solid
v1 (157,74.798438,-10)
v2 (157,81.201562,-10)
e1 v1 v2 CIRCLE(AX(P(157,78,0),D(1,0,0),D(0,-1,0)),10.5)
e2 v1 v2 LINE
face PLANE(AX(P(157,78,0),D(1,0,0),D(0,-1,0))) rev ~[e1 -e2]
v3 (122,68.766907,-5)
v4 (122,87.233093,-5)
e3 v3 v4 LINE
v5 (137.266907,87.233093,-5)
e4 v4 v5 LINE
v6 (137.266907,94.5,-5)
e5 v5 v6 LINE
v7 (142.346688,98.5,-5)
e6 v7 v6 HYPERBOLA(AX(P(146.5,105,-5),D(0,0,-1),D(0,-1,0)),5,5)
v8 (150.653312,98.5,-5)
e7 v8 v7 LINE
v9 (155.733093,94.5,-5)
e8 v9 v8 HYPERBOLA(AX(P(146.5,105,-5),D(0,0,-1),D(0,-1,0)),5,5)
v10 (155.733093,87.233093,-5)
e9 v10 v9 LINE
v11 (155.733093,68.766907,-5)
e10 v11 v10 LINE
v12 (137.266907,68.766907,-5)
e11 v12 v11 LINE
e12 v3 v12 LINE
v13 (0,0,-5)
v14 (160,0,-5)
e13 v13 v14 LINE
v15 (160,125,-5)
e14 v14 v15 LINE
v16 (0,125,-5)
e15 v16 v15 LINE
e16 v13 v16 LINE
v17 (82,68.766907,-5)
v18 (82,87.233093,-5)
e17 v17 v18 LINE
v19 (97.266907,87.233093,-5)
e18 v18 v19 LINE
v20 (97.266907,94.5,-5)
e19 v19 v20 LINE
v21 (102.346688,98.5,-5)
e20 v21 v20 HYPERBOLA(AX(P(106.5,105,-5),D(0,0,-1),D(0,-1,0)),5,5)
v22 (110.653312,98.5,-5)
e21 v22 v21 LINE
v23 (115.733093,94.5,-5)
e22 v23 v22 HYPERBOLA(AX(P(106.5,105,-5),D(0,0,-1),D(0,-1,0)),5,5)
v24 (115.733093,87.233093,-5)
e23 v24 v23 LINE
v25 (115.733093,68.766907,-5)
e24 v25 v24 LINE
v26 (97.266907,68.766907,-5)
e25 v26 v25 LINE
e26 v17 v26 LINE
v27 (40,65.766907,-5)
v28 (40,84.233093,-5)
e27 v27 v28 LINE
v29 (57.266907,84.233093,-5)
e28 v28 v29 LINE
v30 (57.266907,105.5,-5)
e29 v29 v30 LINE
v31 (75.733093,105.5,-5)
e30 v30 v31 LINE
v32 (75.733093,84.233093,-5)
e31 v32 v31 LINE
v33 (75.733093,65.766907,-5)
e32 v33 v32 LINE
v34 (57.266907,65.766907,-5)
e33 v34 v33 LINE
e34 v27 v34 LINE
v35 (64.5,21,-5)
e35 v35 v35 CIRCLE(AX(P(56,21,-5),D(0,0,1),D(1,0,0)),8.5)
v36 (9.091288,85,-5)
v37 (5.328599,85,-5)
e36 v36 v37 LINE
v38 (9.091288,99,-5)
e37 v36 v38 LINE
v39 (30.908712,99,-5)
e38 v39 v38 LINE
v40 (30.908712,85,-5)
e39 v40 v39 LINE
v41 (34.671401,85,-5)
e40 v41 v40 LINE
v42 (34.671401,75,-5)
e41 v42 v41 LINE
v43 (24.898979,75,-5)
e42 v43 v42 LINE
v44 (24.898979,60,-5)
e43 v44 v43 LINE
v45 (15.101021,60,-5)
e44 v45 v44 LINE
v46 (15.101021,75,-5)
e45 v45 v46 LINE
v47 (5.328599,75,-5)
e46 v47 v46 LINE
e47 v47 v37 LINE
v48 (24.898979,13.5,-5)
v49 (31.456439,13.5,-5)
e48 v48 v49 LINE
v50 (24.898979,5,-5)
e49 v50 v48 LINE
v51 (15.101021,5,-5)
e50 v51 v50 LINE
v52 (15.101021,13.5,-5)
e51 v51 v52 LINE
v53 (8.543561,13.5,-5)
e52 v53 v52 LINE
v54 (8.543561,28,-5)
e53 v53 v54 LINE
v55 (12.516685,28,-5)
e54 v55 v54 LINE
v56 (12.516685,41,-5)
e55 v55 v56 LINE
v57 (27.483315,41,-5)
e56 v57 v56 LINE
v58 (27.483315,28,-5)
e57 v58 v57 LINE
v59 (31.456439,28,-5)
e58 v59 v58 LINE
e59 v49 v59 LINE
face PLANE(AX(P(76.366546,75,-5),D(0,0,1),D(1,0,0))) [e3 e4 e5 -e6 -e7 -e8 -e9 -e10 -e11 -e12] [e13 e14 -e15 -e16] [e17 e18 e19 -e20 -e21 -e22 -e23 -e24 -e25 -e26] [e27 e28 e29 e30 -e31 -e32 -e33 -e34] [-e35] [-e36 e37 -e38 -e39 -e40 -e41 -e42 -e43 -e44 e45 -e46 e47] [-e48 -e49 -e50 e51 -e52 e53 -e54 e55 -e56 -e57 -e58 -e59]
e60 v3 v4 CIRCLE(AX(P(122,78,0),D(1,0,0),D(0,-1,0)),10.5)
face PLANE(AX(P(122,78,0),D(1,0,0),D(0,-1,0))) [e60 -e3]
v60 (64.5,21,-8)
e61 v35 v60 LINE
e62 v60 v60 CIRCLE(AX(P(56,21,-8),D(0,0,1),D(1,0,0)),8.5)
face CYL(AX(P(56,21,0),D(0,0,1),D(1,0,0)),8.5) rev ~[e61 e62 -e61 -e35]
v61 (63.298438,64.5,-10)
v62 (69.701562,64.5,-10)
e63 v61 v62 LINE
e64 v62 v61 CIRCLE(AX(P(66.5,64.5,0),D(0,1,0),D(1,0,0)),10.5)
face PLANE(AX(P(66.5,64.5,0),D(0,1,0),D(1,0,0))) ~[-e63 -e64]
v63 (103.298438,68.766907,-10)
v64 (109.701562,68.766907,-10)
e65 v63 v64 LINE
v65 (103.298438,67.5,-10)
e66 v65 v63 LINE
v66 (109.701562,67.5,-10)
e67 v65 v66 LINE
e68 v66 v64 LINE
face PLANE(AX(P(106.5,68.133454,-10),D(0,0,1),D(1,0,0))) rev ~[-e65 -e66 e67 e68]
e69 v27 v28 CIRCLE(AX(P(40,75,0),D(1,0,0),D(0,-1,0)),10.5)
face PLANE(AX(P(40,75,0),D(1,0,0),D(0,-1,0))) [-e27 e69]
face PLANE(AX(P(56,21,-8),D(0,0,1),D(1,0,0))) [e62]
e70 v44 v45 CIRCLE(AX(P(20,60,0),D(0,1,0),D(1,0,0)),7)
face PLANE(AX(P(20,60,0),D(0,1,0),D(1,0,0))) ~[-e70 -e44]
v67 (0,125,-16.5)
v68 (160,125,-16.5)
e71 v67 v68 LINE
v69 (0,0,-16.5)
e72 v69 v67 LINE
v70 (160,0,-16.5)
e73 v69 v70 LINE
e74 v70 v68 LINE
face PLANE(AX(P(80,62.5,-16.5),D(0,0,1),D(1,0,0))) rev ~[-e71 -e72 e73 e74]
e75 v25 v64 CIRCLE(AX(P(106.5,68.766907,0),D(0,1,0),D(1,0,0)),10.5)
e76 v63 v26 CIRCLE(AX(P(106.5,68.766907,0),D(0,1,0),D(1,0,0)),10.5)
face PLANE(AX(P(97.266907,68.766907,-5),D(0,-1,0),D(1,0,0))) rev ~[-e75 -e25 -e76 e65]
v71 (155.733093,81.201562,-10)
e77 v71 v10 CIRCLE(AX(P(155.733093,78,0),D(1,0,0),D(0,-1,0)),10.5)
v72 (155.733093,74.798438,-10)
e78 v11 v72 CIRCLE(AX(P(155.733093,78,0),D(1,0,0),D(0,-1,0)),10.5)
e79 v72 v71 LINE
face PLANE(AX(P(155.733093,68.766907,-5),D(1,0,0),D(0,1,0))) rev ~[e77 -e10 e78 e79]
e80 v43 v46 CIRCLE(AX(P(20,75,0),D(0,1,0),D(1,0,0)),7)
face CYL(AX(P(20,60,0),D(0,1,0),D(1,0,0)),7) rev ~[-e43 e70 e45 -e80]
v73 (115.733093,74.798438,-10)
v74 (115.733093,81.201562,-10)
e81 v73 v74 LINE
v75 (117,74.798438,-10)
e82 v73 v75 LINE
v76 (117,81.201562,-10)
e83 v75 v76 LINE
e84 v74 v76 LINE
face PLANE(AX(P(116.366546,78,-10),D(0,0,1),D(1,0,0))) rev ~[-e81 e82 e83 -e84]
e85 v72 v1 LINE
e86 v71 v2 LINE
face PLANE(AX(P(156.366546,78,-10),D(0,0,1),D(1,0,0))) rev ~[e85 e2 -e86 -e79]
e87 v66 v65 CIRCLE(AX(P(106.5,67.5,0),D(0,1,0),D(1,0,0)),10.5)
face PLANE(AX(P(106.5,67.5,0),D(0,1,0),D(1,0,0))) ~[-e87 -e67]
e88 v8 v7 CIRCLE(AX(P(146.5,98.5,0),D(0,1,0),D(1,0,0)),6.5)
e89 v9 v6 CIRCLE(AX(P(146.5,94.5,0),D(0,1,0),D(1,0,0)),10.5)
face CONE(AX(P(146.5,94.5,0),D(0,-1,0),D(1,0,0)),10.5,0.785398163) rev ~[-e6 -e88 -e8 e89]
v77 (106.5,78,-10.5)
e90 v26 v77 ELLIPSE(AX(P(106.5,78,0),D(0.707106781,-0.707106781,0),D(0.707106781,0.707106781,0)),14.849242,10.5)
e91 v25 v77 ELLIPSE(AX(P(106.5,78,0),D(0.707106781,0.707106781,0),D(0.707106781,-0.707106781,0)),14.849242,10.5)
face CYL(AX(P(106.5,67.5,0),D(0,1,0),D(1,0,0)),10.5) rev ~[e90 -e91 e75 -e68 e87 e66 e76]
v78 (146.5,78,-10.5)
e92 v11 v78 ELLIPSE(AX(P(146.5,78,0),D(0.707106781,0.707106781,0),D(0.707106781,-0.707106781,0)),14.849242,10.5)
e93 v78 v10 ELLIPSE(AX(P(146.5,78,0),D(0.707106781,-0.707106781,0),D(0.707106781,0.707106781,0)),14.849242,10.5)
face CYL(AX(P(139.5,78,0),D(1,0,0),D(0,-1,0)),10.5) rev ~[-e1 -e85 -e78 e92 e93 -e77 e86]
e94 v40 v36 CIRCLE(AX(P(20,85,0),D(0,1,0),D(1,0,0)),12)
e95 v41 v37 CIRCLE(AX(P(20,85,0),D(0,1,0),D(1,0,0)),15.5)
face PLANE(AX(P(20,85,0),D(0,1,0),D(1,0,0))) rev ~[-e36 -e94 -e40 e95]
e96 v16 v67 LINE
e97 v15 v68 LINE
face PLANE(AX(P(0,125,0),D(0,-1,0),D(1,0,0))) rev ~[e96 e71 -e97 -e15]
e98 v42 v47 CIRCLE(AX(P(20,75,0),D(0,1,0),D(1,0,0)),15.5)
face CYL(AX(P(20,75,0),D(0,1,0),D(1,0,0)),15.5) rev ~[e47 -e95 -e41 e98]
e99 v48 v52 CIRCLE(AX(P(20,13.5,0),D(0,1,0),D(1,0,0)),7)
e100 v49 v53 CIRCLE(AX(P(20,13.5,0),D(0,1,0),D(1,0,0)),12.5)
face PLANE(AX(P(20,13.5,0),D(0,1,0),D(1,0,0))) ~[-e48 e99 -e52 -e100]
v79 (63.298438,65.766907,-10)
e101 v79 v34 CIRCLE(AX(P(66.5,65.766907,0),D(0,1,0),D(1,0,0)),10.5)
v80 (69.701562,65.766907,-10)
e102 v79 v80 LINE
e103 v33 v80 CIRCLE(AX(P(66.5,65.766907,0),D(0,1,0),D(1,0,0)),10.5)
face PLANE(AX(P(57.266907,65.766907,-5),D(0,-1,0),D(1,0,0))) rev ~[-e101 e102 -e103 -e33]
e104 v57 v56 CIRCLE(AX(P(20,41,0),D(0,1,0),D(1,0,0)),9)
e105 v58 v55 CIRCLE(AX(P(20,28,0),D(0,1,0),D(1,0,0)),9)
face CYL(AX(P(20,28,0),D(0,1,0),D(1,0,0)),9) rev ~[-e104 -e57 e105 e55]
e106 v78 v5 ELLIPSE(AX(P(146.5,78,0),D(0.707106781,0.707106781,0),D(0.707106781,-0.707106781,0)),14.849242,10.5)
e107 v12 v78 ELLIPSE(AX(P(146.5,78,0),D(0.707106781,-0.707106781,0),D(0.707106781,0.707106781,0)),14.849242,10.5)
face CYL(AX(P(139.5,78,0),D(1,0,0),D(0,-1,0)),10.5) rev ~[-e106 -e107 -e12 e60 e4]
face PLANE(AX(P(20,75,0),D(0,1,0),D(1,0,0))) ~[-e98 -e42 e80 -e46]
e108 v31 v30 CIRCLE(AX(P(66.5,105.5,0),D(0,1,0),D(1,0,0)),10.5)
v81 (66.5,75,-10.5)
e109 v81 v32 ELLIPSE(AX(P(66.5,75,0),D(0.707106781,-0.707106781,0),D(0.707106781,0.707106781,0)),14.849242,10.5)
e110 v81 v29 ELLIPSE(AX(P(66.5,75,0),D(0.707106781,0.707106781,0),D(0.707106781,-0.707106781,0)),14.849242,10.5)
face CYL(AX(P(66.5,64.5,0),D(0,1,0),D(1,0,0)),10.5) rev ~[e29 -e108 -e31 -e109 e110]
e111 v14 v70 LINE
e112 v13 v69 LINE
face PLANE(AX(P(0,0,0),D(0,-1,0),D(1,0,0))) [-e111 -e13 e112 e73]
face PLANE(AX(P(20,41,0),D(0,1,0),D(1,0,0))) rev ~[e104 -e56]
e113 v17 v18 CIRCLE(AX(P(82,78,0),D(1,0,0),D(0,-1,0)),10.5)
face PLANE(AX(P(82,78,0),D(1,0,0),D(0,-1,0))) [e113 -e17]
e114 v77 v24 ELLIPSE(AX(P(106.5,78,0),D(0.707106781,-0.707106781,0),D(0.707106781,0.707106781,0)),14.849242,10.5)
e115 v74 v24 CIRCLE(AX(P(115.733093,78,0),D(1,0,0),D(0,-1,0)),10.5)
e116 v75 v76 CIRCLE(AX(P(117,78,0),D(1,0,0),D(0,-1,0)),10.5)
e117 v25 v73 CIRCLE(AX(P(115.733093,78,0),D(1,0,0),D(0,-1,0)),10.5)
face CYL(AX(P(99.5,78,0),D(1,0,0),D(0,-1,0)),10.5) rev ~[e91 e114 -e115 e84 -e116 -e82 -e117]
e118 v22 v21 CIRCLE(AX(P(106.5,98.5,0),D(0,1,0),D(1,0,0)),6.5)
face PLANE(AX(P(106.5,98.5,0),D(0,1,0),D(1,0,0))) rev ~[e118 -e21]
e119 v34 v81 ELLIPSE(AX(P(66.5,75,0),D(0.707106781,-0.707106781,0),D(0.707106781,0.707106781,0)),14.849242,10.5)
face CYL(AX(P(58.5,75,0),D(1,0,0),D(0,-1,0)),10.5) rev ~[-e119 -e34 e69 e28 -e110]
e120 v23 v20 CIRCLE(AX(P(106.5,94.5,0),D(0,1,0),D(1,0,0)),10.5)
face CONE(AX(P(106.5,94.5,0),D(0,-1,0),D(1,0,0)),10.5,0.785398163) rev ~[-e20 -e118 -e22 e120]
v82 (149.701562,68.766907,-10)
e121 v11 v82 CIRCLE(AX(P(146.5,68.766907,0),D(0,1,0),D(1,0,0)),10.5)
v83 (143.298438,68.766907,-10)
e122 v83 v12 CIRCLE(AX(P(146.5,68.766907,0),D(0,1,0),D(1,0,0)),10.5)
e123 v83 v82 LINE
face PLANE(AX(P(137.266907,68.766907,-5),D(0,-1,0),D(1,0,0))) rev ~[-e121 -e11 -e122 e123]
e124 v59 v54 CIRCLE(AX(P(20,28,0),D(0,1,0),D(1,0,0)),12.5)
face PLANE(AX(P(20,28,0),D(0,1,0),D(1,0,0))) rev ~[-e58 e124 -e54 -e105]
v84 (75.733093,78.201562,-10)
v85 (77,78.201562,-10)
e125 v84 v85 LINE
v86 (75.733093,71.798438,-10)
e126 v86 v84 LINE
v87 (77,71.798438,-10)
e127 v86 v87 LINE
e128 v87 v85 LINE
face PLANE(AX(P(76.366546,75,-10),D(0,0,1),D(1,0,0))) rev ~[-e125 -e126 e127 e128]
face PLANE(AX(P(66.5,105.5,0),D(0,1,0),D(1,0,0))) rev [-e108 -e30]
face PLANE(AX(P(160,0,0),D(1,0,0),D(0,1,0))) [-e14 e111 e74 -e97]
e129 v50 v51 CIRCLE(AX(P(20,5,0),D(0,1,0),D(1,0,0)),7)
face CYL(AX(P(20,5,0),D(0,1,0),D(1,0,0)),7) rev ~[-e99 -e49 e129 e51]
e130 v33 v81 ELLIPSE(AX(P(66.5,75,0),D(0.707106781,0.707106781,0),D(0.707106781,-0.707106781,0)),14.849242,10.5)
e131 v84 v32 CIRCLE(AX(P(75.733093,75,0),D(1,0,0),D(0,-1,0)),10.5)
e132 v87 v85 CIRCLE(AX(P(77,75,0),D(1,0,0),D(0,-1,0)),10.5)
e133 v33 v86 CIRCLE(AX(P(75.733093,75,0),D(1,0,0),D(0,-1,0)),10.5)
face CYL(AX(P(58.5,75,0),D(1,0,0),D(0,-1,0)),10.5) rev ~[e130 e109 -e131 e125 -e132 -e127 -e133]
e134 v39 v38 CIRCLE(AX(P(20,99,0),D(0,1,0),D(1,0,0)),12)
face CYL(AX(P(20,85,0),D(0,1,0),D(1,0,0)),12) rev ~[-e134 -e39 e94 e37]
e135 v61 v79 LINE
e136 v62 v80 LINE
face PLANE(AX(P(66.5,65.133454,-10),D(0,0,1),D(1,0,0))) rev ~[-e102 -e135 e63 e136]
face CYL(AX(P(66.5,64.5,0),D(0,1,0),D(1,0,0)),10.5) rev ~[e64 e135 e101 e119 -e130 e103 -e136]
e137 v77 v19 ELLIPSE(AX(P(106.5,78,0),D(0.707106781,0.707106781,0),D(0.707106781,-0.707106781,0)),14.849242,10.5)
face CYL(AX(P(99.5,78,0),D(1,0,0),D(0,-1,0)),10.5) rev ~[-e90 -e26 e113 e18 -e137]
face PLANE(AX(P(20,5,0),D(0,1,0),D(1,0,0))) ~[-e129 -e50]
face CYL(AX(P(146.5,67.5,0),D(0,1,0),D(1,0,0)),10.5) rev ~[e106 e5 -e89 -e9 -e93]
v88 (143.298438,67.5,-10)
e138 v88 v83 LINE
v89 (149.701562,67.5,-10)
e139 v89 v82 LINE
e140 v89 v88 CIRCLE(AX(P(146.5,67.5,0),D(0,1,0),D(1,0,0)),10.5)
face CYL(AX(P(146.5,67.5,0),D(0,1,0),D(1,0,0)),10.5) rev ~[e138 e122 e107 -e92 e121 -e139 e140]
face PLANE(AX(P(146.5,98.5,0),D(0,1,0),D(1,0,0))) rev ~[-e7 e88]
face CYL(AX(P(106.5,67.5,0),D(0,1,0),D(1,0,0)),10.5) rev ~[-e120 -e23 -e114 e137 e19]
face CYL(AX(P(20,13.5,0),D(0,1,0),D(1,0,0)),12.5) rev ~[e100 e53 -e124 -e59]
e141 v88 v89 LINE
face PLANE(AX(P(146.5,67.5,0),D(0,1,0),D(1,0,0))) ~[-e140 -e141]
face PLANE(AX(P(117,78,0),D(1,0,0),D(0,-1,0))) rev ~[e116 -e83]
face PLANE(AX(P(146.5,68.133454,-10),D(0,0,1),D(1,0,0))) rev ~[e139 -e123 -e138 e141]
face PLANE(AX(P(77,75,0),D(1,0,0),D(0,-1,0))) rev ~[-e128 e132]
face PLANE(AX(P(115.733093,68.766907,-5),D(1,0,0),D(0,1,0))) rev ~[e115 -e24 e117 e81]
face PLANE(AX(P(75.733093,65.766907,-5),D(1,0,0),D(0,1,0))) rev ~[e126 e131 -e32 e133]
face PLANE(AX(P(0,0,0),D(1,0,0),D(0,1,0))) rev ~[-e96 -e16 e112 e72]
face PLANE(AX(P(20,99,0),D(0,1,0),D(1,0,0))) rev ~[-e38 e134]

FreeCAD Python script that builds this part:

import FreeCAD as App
import Part
import Sketcher
Q = App.Units.Quantity

doc = App.newDocument("Part")
body = doc.addObject("PartDesign::Body", "Body")

# Sketch on XY plane
sketch1 = doc.addObject("Sketcher::SketchObject", "Sketch")
body.addObject(sketch1)
sketch1.AttachmentSupport = (doc.XY_Plane, [""])
sketch1.MapMode = "FlatFace"
sketch1.addGeometry([
    Part.LineSegment(App.Vector(0, 125, 0), App.Vector(0, 0, 0)),
    Part.LineSegment(App.Vector(0, 0, 0), App.Vector(160, 0, 0)),
    Part.LineSegment(App.Vector(160, 0, 0), App.Vector(160, 125, 0)),
    Part.LineSegment(App.Vector(160, 125, 0), App.Vector(0, 125, 0)),
], False)
sketch1.addConstraint([
    Sketcher.Constraint("Coincident", 0, 2, 1, 1),
    Sketcher.Constraint("Coincident", 1, 2, 2, 1),
    Sketcher.Constraint("Coincident", 2, 2, 3, 1),
    Sketcher.Constraint("Coincident", 3, 2, 0, 1),
    Sketcher.Constraint("Vertical", 0),
    Sketcher.Constraint("Horizontal", 1),
    Sketcher.Constraint("Vertical", 2),
    Sketcher.Constraint("Horizontal", 3),
    Sketcher.Constraint("Coincident", 0, 2, -1, 1),
    Sketcher.Constraint("DistanceX", 1, 1, 1, 2, 160.0),
    Sketcher.Constraint("DistanceY", 0, 2, 0, 1, 125.0),
])
pad1 = doc.addObject("PartDesign::Pad", "Pad")
body.addObject(pad1)
pad1.Profile = sketch1
pad1.Length = 16.5
pad1.Reversed = True

# Sketch on XY plane
sketch2 = doc.addObject("Sketcher::SketchObject", "Sketch001")
body.addObject(sketch2)
sketch2.AttachmentSupport = (doc.XY_Plane, [""])
sketch2.MapMode = "FlatFace"
sketch2.addGeometry([
    Part.LineSegment(App.Vector(20, 60, 0), App.Vector(27, 60, 0)),  # 0
    Part.LineSegment(App.Vector(27, 60, 0), App.Vector(27, 75, 0)),  # 1
    Part.LineSegment(App.Vector(27, 75, 0), App.Vector(35.5, 75, 0)),  # 2
    Part.LineSegment(App.Vector(35.5, 75, 0), App.Vector(35.5, 85, 0)),  # 3
    Part.LineSegment(App.Vector(35.5, 85, 0), App.Vector(32, 85, 0)),  # 4
    Part.LineSegment(App.Vector(32, 85, 0), App.Vector(32, 99, 0)),  # 5
    Part.LineSegment(App.Vector(32, 99, 0), App.Vector(24.5, 99, 0)),  # 6
    Part.LineSegment(App.Vector(24.5, 99, 0), App.Vector(24.5, 113, 0)),  # 7
    Part.LineSegment(App.Vector(24.5, 113, 0), App.Vector(20, 113, 0)),  # 8
    Part.LineSegment(App.Vector(20, 113, 0), App.Vector(20, 60, 0)),  # 9
], False)
sketch2.addGeometry(Part.LineSegment(App.Vector(20, 60, 0), App.Vector(20, 113, 0)), True)  # axis
sketch2.addConstraint([
    Sketcher.Constraint("Coincident", 0, 2, 1, 1),
    Sketcher.Constraint("Coincident", 1, 2, 2, 1),
    Sketcher.Constraint("Coincident", 2, 2, 3, 1),
    Sketcher.Constraint("Coincident", 3, 2, 4, 1),
    Sketcher.Constraint("Coincident", 4, 2, 5, 1),
    Sketcher.Constraint("Coincident", 5, 2, 6, 1),
    Sketcher.Constraint("Coincident", 6, 2, 7, 1),
    Sketcher.Constraint("Coincident", 7, 2, 8, 1),
    Sketcher.Constraint("Coincident", 8, 2, 9, 1),
    Sketcher.Constraint("Coincident", 9, 2, 0, 1),
    Sketcher.Constraint("Horizontal", 0),
    Sketcher.Constraint("Vertical", 1),
    Sketcher.Constraint("Horizontal", 2),
    Sketcher.Constraint("Vertical", 3),
    Sketcher.Constraint("Horizontal", 4),
    Sketcher.Constraint("Vertical", 5),
    Sketcher.Constraint("Horizontal", 6),
    Sketcher.Constraint("Vertical", 7),
    Sketcher.Constraint("Horizontal", 8),
    Sketcher.Constraint("Vertical", 9),
    Sketcher.Constraint("Vertical", 10),
    Sketcher.Constraint("Coincident", 10, 1, 9, 2),
    Sketcher.Constraint("Horizontal", 7, 2, 10, 2),
    Sketcher.Constraint("Equal", 5, 7),
    Sketcher.Constraint("DistanceX", 0, 1, 0, 2, 7.0),
    Sketcher.Constraint("DistanceY", 1, 1, 1, 2, 15.0),
    Sketcher.Constraint("DistanceY", 3, 1, 3, 2, 10.0),
    Sketcher.Constraint("DistanceY", 5, 1, 5, 2, 14.0),
    Sketcher.Constraint("DistanceX", 2, 1, 2, 2, 8.5),
    Sketcher.Constraint("DistanceX", 4, 2, 4, 1, 3.5),
    Sketcher.Constraint("DistanceX", 6, 2, 6, 1, 7.5),
    Sketcher.Constraint("DistanceX", -1, 1, 0, 2, 27.0),
    Sketcher.Constraint("DistanceY", -1, 1, 0, 2, 60.0),
])
groove = doc.addObject("PartDesign::Groove", "Groove")
body.addObject(groove)
groove.Profile = sketch2
groove.ReferenceAxis = (sketch2, ["Axis0"])
groove.Angle = 360

# Sketch on XY plane
sketch3 = doc.addObject("Sketcher::SketchObject", "Sketch002")
body.addObject(sketch3)
sketch3.AttachmentSupport = (doc.XY_Plane, [""])
sketch3.MapMode = "FlatFace"
sketch3.addGeometry([
    Part.LineSegment(App.Vector(40, 75, 0), App.Vector(40, 64, 0)),
    Part.LineSegment(App.Vector(40, 64, 0), App.Vector(77, 64, 0)),
    Part.LineSegment(App.Vector(77, 64, 0), App.Vector(77, 75, 0)),
    Part.LineSegment(App.Vector(77, 75, 0), App.Vector(40, 75, 0)),
], False)
sketch3.addGeometry(Part.LineSegment(App.Vector(40, 75, 0), App.Vector(77, 75, 0)), True)  # axis
sketch3.addConstraint([
    Sketcher.Constraint("Coincident", 0, 2, 1, 1),
    Sketcher.Constraint("Coincident", 1, 2, 2, 1),
    Sketcher.Constraint("Coincident", 2, 2, 3, 1),
    Sketcher.Constraint("Coincident", 3, 2, 0, 1),
    Sketcher.Constraint("Vertical", 0),
    Sketcher.Constraint("Horizontal", 1),
    Sketcher.Constraint("Vertical", 2),
    Sketcher.Constraint("Horizontal", 3),
    Sketcher.Constraint("Horizontal", 4),
    Sketcher.Constraint("Coincident", 4, 1, 3, 2),
    Sketcher.Constraint("Vertical", 1, 2, 4, 2),
    Sketcher.Constraint("DistanceX", 1, 1, 1, 2, 37.0),
    Sketcher.Constraint("DistanceY", 0, 2, 0, 1, 10.5),
    Sketcher.Constraint("DistanceX", -1, 1, 0, 2, 40.0),
    Sketcher.Constraint("DistanceY", -1, 1, 2, 2, 75.0),
])
groove2 = doc.addObject("PartDesign::Groove", "Groove001")
body.addObject(groove2)
groove2.Profile = sketch3
groove2.ReferenceAxis = (sketch3, ["Axis0"])
groove2.Angle = 360

# Sketch on XY plane
sketch4 = doc.addObject("Sketcher::SketchObject", "Sketch003")
body.addObject(sketch4)
sketch4.AttachmentSupport = (doc.XY_Plane, [""])
sketch4.MapMode = "FlatFace"
sketch4.addGeometry([
    Part.LineSegment(App.Vector(66, 106, 0), App.Vector(66, 64, 0)),
    Part.LineSegment(App.Vector(66, 64, 0), App.Vector(77, 64, 0)),
    Part.LineSegment(App.Vector(77, 64, 0), App.Vector(77, 106, 0)),
    Part.LineSegment(App.Vector(77, 106, 0), App.Vector(66, 106, 0)),
], False)
sketch4.addGeometry(Part.LineSegment(App.Vector(66, 64, 0), App.Vector(66, 106, 0)), True)  # axis
sketch4.addConstraint([
    Sketcher.Constraint("Coincident", 0, 2, 1, 1),
    Sketcher.Constraint("Coincident", 1, 2, 2, 1),
    Sketcher.Constraint("Coincident", 2, 2, 3, 1),
    Sketcher.Constraint("Coincident", 3, 2, 0, 1),
    Sketcher.Constraint("Vertical", 0),
    Sketcher.Constraint("Horizontal", 1),
    Sketcher.Constraint("Vertical", 2),
    Sketcher.Constraint("Horizontal", 3),
    Sketcher.Constraint("Vertical", 4),
    Sketcher.Constraint("Coincident", 4, 1, 0, 2),
    Sketcher.Constraint("Horizontal", 2, 2, 4, 2),
    Sketcher.Constraint("DistanceY", 0, 2, 0, 1, 41.0),
    Sketcher.Constraint("DistanceX", 1, 1, 1, 2, 10.5),
    Sketcher.Constraint("DistanceX", -1, 1, 1, 2, 77.0),
    Sketcher.Constraint("DistanceY", -1, 1, 0, 2, 64.5),
])
groove3 = doc.addObject("PartDesign::Groove", "Groove002")
body.addObject(groove3)
groove3.Profile = sketch4
groove3.ReferenceAxis = (sketch4, ["Axis0"])
groove3.Angle = 360

# Sketch on XY plane
sketch5 = doc.addObject("Sketcher::SketchObject", "Sketch004")
body.addObject(sketch5)
sketch5.AttachmentSupport = (doc.XY_Plane, [""])
sketch5.MapMode = "FlatFace"
sketch5.addGeometry([
    Part.LineSegment(App.Vector(82, 78, 0), App.Vector(82, 68, 0)),  # 0
    Part.LineSegment(App.Vector(82, 68, 0), App.Vector(117, 68, 0)),  # 1
    Part.LineSegment(App.Vector(117, 68, 0), App.Vector(117, 78, 0)),  # 2
    Part.LineSegment(App.Vector(117, 78, 0), App.Vector(82, 78, 0)),  # 3
    Part.LineSegment(App.Vector(122, 78, 0), App.Vector(122, 68, 0)),  # 4
    Part.LineSegment(App.Vector(122, 68, 0), App.Vector(157, 68, 0)),  # 5
    Part.LineSegment(App.Vector(157, 68, 0), App.Vector(157, 78, 0)),  # 6
    Part.LineSegment(App.Vector(157, 78, 0), App.Vector(122, 78, 0)),  # 7
], False)
sketch5.addGeometry(Part.LineSegment(App.Vector(82, 78, 0), App.Vector(157, 78, 0)), True)  # axis
sketch5.addConstraint([
    Sketcher.Constraint("Coincident", 0, 2, 1, 1),
    Sketcher.Constraint("Coincident", 1, 2, 2, 1),
    Sketcher.Constraint("Coincident", 2, 2, 3, 1),
    Sketcher.Constraint("Coincident", 3, 2, 0, 1),
    Sketcher.Constraint("Coincident", 4, 2, 5, 1),
    Sketcher.Constraint("Coincident", 5, 2, 6, 1),
    Sketcher.Constraint("Coincident", 6, 2, 7, 1),
    Sketcher.Constraint("Coincident", 7, 2, 4, 1),
    Sketcher.Constraint("Vertical", 0),
    Sketcher.Constraint("Horizontal", 1),
    Sketcher.Constraint("Vertical", 2),
    Sketcher.Constraint("Horizontal", 3),
    Sketcher.Constraint("Vertical", 4),
    Sketcher.Constraint("Horizontal", 5),
    Sketcher.Constraint("Vertical", 6),
    Sketcher.Constraint("Horizontal", 7),
    Sketcher.Constraint("Horizontal", 8),
    Sketcher.Constraint("Coincident", 8, 1, 3, 2),
    Sketcher.Constraint("Coincident", 8, 2, 6, 2),
    Sketcher.Constraint("Horizontal", 1, 2, 4, 2),
    Sketcher.Constraint("Equal", 3, 5),
    Sketcher.Constraint("DistanceX", 1, 1, 1, 2, 35.0),
    Sketcher.Constraint("DistanceX", 8, 1, 8, 2, 75.0),
    Sketcher.Constraint("DistanceY", 0, 2, 0, 1, 10.5),
    Sketcher.Constraint("DistanceX", -1, 1, 0, 2, 82.0),
    Sketcher.Constraint("DistanceY", -1, 1, 2, 2, 78.0),
])
groove4 = doc.addObject("PartDesign::Groove", "Groove003")
body.addObject(groove4)
groove4.Profile = sketch5
groove4.ReferenceAxis = (sketch5, ["Axis0"])
groove4.Angle = 360

# Sketch on XY plane
sketch6 = doc.addObject("Sketcher::SketchObject", "Sketch005")
body.addObject(sketch6)
sketch6.AttachmentSupport = (doc.XY_Plane, [""])
sketch6.MapMode = "FlatFace"
sketch6.addGeometry([
    Part.LineSegment(App.Vector(117, 94, 0), App.Vector(113, 98, 0)),  # 0
    Part.LineSegment(App.Vector(113, 98, 0), App.Vector(106, 98, 0)),  # 1
    Part.LineSegment(App.Vector(106, 98, 0), App.Vector(106, 68, 0)),  # 2
    Part.LineSegment(App.Vector(106, 68, 0), App.Vector(117, 68, 0)),  # 3
    Part.LineSegment(App.Vector(117, 68, 0), App.Vector(117, 94, 0)),  # 4
], False)
sketch6.addGeometry(Part.LineSegment(App.Vector(106, 68, 0), App.Vector(106, 98, 0)), True)  # axis
sketch6.addConstraint([
    Sketcher.Constraint("Coincident", 0, 2, 1, 1),
    Sketcher.Constraint("Coincident", 1, 2, 2, 1),
    Sketcher.Constraint("Coincident", 2, 2, 3, 1),
    Sketcher.Constraint("Coincident", 3, 2, 4, 1),
    Sketcher.Constraint("Coincident", 4, 2, 0, 1),
    Sketcher.Constraint("Horizontal", 1),
    Sketcher.Constraint("Vertical", 2),
    Sketcher.Constraint("Horizontal", 3),
    Sketcher.Constraint("Vertical", 4),
    Sketcher.Constraint("Vertical", 5),
    Sketcher.Constraint("Coincident", 5, 1, 2, 2),
    Sketcher.Constraint("Horizontal", 0, 2, 5, 2),
    Sketcher.Constraint("DistanceY", 2, 2, 2, 1, 31.0),
    Sketcher.Constraint("DistanceY", 4, 1, 4, 2, 27.0),
    Sketcher.Constraint("Angle", 0, Q("135 deg")),
    Sketcher.Constraint("DistanceX", 1, 2, 1, 1, 6.5),
    Sketcher.Constraint("DistanceX", -1, 1, 0, 2, 113.0),
    Sketcher.Constraint("DistanceY", -1, 1, 0, 2, 98.5),
])
groove5 = doc.addObject("PartDesign::Groove", "Groove004")
body.addObject(groove5)
groove5.Profile = sketch6
groove5.ReferenceAxis = (sketch6, ["Axis0"])
groove5.Angle = 360

# Sketch on XY plane
sketch7 = doc.addObject("Sketcher::SketchObject", "Sketch006")
body.addObject(sketch7)
sketch7.AttachmentSupport = (doc.XY_Plane, [""])
sketch7.MapMode = "FlatFace"
sketch7.addGeometry([
    Part.LineSegment(App.Vector(157, 94, 0), App.Vector(153, 98, 0)),  # 0
    Part.LineSegment(App.Vector(153, 98, 0), App.Vector(146, 98, 0)),  # 1
    Part.LineSegment(App.Vector(146, 98, 0), App.Vector(146, 68, 0)),  # 2
    Part.LineSegment(App.Vector(146, 68, 0), App.Vector(157, 68, 0)),  # 3
    Part.LineSegment(App.Vector(157, 68, 0), App.Vector(157, 94, 0)),  # 4
], False)
sketch7.addGeometry(Part.LineSegment(App.Vector(146, 68, 0), App.Vector(146, 98, 0)), True)  # axis
sketch7.addConstraint([
    Sketcher.Constraint("Coincident", 0, 2, 1, 1),
    Sketcher.Constraint("Coincident", 1, 2, 2, 1),
    Sketcher.Constraint("Coincident", 2, 2, 3, 1),
    Sketcher.Constraint("Coincident", 3, 2, 4, 1),
    Sketcher.Constraint("Coincident", 4, 2, 0, 1),
    Sketcher.Constraint("Horizontal", 1),
    Sketcher.Constraint("Vertical", 2),
    Sketcher.Constraint("Horizontal", 3),
    Sketcher.Constraint("Vertical", 4),
    Sketcher.Constraint("Vertical", 5),
    Sketcher.Constraint("Coincident", 5, 1, 2, 2),
    Sketcher.Constraint("Horizontal", 0, 2, 5, 2),
    Sketcher.Constraint("DistanceY", 2, 2, 2, 1, 31.0),
    Sketcher.Constraint("DistanceY", 4, 1, 4, 2, 27.0),
    Sketcher.Constraint("Angle", 0, Q("135 deg")),
    Sketcher.Constraint("DistanceX", 1, 2, 1, 1, 6.5),
    Sketcher.Constraint("DistanceX", -1, 1, 0, 2, 153.0),
    Sketcher.Constraint("DistanceY", -1, 1, 0, 2, 98.5),
])
groove6 = doc.addObject("PartDesign::Groove", "Groove005")
body.addObject(groove6)
groove6.Profile = sketch7
groove6.ReferenceAxis = (sketch7, ["Axis0"])
groove6.Angle = 360

# Sketch on XY plane
sketch8 = doc.addObject("Sketcher::SketchObject", "Sketch007")
body.addObject(sketch8)
sketch8.AttachmentSupport = (doc.XY_Plane, [""])
sketch8.MapMode = "FlatFace"
sketch8.addGeometry([
    Part.LineSegment(App.Vector(20, 5, 0), App.Vector(27, 5, 0)),  # 0
    Part.LineSegment(App.Vector(27, 5, 0), App.Vector(27, 13.5, 0)),  # 1
    Part.LineSegment(App.Vector(27, 13.5, 0), App.Vector(32.5, 13.5, 0)),  # 2
    Part.LineSegment(App.Vector(32.5, 13.5, 0), App.Vector(32.5, 28, 0)),  # 3
    Part.LineSegment(App.Vector(32.5, 28, 0), App.Vector(29, 28, 0)),  # 4
    Part.LineSegment(App.Vector(29, 28, 0), App.Vector(29, 41, 0)),  # 5
    Part.LineSegment(App.Vector(29, 41, 0), App.Vector(20, 41, 0)),  # 6
    Part.LineSegment(App.Vector(20, 41, 0), App.Vector(20, 5, 0)),  # 7
], False)
sketch8.addGeometry(Part.LineSegment(App.Vector(20, 5, 0), App.Vector(20, 41, 0)), True)  # axis
sketch8.addConstraint([
    Sketcher.Constraint("Coincident", 0, 2, 1, 1),
    Sketcher.Constraint("Coincident", 1, 2, 2, 1),
    Sketcher.Constraint("Coincident", 2, 2, 3, 1),
    Sketcher.Constraint("Coincident", 3, 2, 4, 1),
    Sketcher.Constraint("Coincident", 4, 2, 5, 1),
    Sketcher.Constraint("Coincident", 5, 2, 6, 1),
    Sketcher.Constraint("Coincident", 6, 2, 7, 1),
    Sketcher.Constraint("Coincident", 7, 2, 0, 1),
    Sketcher.Constraint("Horizontal", 0),
    Sketcher.Constraint("Vertical", 1),
    Sketcher.Constraint("Horizontal", 2),
    Sketcher.Constraint("Vertical", 3),
    Sketcher.Constraint("Horizontal", 4),
    Sketcher.Constraint("Vertical", 5),
    Sketcher.Constraint("Horizontal", 6),
    Sketcher.Constraint("Vertical", 7),
    Sketcher.Constraint("Vertical", 8),
    Sketcher.Constraint("Coincident", 8, 1, 7, 2),
    Sketcher.Constraint("Horizontal", 5, 2, 8, 2),
    Sketcher.Constraint("DistanceX", 0, 1, 0, 2, 7.0),
    Sketcher.Constraint("DistanceX", 6, 2, 6, 1, 9.0),
    Sketcher.Constraint("DistanceY", 5, 1, 5, 2, 13.0),
    Sketcher.Constraint("DistanceY", 7, 2, 7, 1, 36.0),
    Sketcher.Constraint("DistanceX", 2, 1, 2, 2, 5.5),
    Sketcher.Constraint("DistanceY", 1, 1, 1, 2, 8.5),
    Sketcher.Constraint("DistanceX", -1, 1, 0, 2, 27.0),
    Sketcher.Constraint("DistanceY", -1, 1, 0, 2, 5.0),
])
groove7 = doc.addObject("PartDesign::Groove", "Groove006")
body.addObject(groove7)
groove7.Profile = sketch8
groove7.ReferenceAxis = (sketch8, ["Axis0"])
groove7.Angle = 360

# Sketch on XY plane
sketch9 = doc.addObject("Sketcher::SketchObject", "Sketch008")
body.addObject(sketch9)
sketch9.AttachmentSupport = (doc.XY_Plane, [""])
sketch9.MapMode = "FlatFace"
sketch9.addGeometry(Part.Circle(App.Vector(56, 21, 0), App.Vector(0, 0, 1), 8), False)
sketch9.addConstraint([
    Sketcher.Constraint("Diameter", 0, 17.0),
    Sketcher.Constraint("DistanceX", -1, 1, 0, 3, 56.0),
    Sketcher.Constraint("DistanceY", -1, 1, 0, 3, 21.0),
])
pocket1 = doc.addObject("PartDesign::Pocket", "Pocket")
body.addObject(pocket1)
pocket1.Profile = sketch9
pocket1.Length = 8

# Sketch on XZ plane
sketch10 = doc.addObject("Sketcher::SketchObject", "Sketch009")
body.addObject(sketch10)
sketch10.AttachmentSupport = (doc.XZ_Plane, [""])
sketch10.MapMode = "FlatFace"
sketch10.addGeometry([
    Part.LineSegment(App.Vector(0, 0, 0), App.Vector(0, -5, 0)),
    Part.LineSegment(App.Vector(0, -5, 0), App.Vector(160, -5, 0)),
    Part.LineSegment(App.Vector(160, -5, 0), App.Vector(160, 0, 0)),
    Part.LineSegment(App.Vector(160, 0, 0), App.Vector(0, 0, 0)),
], False)
sketch10.addConstraint([
    Sketcher.Constraint("Coincident", 0, 2, 1, 1),
    Sketcher.Constraint("Coincident", 1, 2, 2, 1),
    Sketcher.Constraint("Coincident", 2, 2, 3, 1),
    Sketcher.Constraint("Coincident", 3, 2, 0, 1),
    Sketcher.Constraint("Vertical", 0),
    Sketcher.Constraint("Horizontal", 1),
    Sketcher.Constraint("Vertical", 2),
    Sketcher.Constraint("Horizontal", 3),
    Sketcher.Constraint("Coincident", 3, 2, -1, 1),
    Sketcher.Constraint("DistanceX", 1, 1, 1, 2, 160.0),
    Sketcher.Constraint("DistanceY", 0, 2, 0, 1, 5.0),
])
pocket2 = doc.addObject("PartDesign::Pocket", "Pocket001")
body.addObject(pocket2)
pocket2.Profile = sketch10
pocket2.Length = 160

# Sketch on XY plane
sketch11 = doc.addObject("Sketcher::SketchObject", "Sketch010")
body.addObject(sketch11)
sketch11.AttachmentSupport = (doc.XY_Plane, [""])
sketch11.MapMode = "FlatFace"
sketch11.AttachmentOffset = App.Placement(App.Vector(0, 0, -5), App.Rotation())
sketch11.addGeometry([
    Part.LineSegment(App.Vector(75.7, 84.2, 0), App.Vector(75.7, 65.8, 0)),  # 0
    Part.LineSegment(App.Vector(75.7, 65.8, 0), App.Vector(77, 65.8, 0)),  # 1
    Part.LineSegment(App.Vector(77, 65.8, 0), App.Vector(77, 84.2, 0)),  # 2
    Part.LineSegment(App.Vector(77, 84.2, 0), App.Vector(75.7, 84.2, 0)),  # 3
    Part.LineSegment(App.Vector(57.3, 65.8, 0), App.Vector(57.3, 64.5, 0)),  # 4
    Part.LineSegment(App.Vector(57.3, 64.5, 0), App.Vector(75.7, 64.5, 0)),  # 5
    Part.LineSegment(App.Vector(75.7, 64.5, 0), App.Vector(75.7, 65.8, 0)),  # 6
    Part.LineSegment(App.Vector(75.7, 65.8, 0), App.Vector(57.3, 65.8, 0)),  # 7
    Part.LineSegment(App.Vector(115.7, 87.2, 0), App.Vector(115.7, 68.8, 0)),  # 8
    Part.LineSegment(App.Vector(115.7, 68.8, 0), App.Vector(117, 68.8, 0)),  # 9
    Part.LineSegment(App.Vector(117, 68.8, 0), App.Vector(117, 87.2, 0)),  # 10
    Part.LineSegment(App.Vector(117, 87.2, 0), App.Vector(115.7, 87.2, 0)),  # 11
    Part.LineSegment(App.Vector(97.3, 68.8, 0), App.Vector(97.3, 67.5, 0)),  # 12
    Part.LineSegment(App.Vector(97.3, 67.5, 0), App.Vector(115.7, 67.5, 0)),  # 13
    Part.LineSegment(App.Vector(115.7, 67.5, 0), App.Vector(115.7, 68.8, 0)),  # 14
    Part.LineSegment(App.Vector(115.7, 68.8, 0), App.Vector(97.3, 68.8, 0)),  # 15
    Part.LineSegment(App.Vector(155.7, 87.2, 0), App.Vector(155.7, 68.8, 0)),  # 16
    Part.LineSegment(App.Vector(155.7, 68.8, 0), App.Vector(157, 68.8, 0)),  # 17
    Part.LineSegment(App.Vector(157, 68.8, 0), App.Vector(157, 87.2, 0)),  # 18
    Part.LineSegment(App.Vector(157, 87.2, 0), App.Vector(155.7, 87.2, 0)),  # 19
    Part.LineSegment(App.Vector(137.3, 68.8, 0), App.Vector(137.3, 67.5, 0)),  # 20
    Part.LineSegment(App.Vector(137.3, 67.5, 0), App.Vector(155.7, 67.5, 0)),  # 21
    Part.LineSegment(App.Vector(155.7, 67.5, 0), App.Vector(155.7, 68.8, 0)),  # 22
    Part.LineSegment(App.Vector(155.7, 68.8, 0), App.Vector(137.3, 68.8, 0)),  # 23
], False)
sketch11.addConstraint([
    Sketcher.Constraint("Coincident", 0, 2, 1, 1),
    Sketcher.Constraint("Coincident", 1, 2, 2, 1),
    Sketcher.Constraint("Coincident", 2, 2, 3, 1),
    Sketcher.Constraint("Coincident", 3, 2, 0, 1),
    Sketcher.Constraint("Coincident", 4, 2, 5, 1),
    Sketcher.Constraint("Coincident", 5, 2, 6, 1),
    Sketcher.Constraint("Coincident", 6, 2, 7, 1),
    Sketcher.Constraint("Coincident", 7, 2, 4, 1),
    Sketcher.Constraint("Coincident", 8, 2, 9, 1),
    Sketcher.Constraint("Coincident", 9, 2, 10, 1),
    Sketcher.Constraint("Coincident", 10, 2, 11, 1),
    Sketcher.Constraint("Coincident", 11, 2, 8, 1),
    Sketcher.Constraint("Coincident", 12, 2, 13, 1),
    Sketcher.Constraint("Coincident", 13, 2, 14, 1),
    Sketcher.Constraint("Coincident", 14, 2, 15, 1),
    Sketcher.Constraint("Coincident", 15, 2, 12, 1),
    Sketcher.Constraint("Coincident", 16, 2, 17, 1),
    Sketcher.Constraint("Coincident", 17, 2, 18, 1),
    Sketcher.Constraint("Coincident", 18, 2, 19, 1),
    Sketcher.Constraint("Coincident", 19, 2, 16, 1),
    Sketcher.Constraint("Coincident", 20, 2, 21, 1),
    Sketcher.Constraint("Coincident", 21, 2, 22, 1),
    Sketcher.Constraint("Coincident", 22, 2, 23, 1),
    Sketcher.Constraint("Coincident", 23, 2, 20, 1),
    Sketcher.Constraint("Vertical", 0),
    Sketcher.Constraint("Horizontal", 1),
    Sketcher.Constraint("Vertical", 2),
    Sketcher.Constraint("Horizontal", 3),
    Sketcher.Constraint("Vertical", 4),
    Sketcher.Constraint("Horizontal", 5),
    Sketcher.Constraint("Vertical", 6),
    Sketcher.Constraint("Horizontal", 7),
    Sketcher.Constraint("Vertical", 8),
    Sketcher.Constraint("Horizontal", 9),
    Sketcher.Constraint("Vertical", 10),
    Sketcher.Constraint("Horizontal", 11),
    Sketcher.Constraint("Vertical", 12),
    Sketcher.Constraint("Horizontal", 13),
    Sketcher.Constraint("Vertical", 14),
    Sketcher.Constraint("Horizontal", 15),
    Sketcher.Constraint("Vertical", 16),
    Sketcher.Constraint("Horizontal", 17),
    Sketcher.Constraint("Vertical", 18),
    Sketcher.Constraint("Horizontal", 19),
    Sketcher.Constraint("Vertical", 20),
    Sketcher.Constraint("Horizontal", 21),
    Sketcher.Constraint("Vertical", 22),
    Sketcher.Constraint("Horizontal", 23),
    Sketcher.Constraint("Coincident", 6, 2, 0, 2),
    Sketcher.Constraint("Coincident", 14, 2, 8, 2),
    Sketcher.Constraint("Coincident", 22, 2, 16, 2),
    Sketcher.Constraint("Horizontal", 15, 2, 16, 2),
    Sketcher.Constraint("Horizontal", 11, 2, 18, 2),
    Sketcher.Constraint("Horizontal", 13, 2, 20, 2),
    Sketcher.Constraint("Equal", 3, 9),
    Sketcher.Constraint("Equal", 7, 13),
    Sketcher.Constraint("Equal", 11, 17),
    Sketcher.Constraint("Equal", 15, 21),
    Sketcher.Constraint("Equal", 23, 0),
    Sketcher.Constraint("Equal", 19, 4),
    Sketcher.Constraint("Equal", 2, 8),
    Sketcher.Constraint("Equal", 6, 12),
    Sketcher.Constraint("DistanceX", -1, 1, 1, 2, 77.0),
    Sketcher.Constraint("DistanceX", -1, 1, 9, 2, 117.0),
    Sketcher.Constraint("DistanceX", -1, 1, 17, 2, 157.0),
    Sketcher.Constraint("DistanceY", 1, 2, 8, 2, 3.0),
    Sketcher.Constraint("DistanceY", -1, 1, 4, 2, 64.5),
    Sketcher.Constraint("DistanceX", 1, 1, 1, 2, 1.266907),
    Sketcher.Constraint("DistanceX", 5, 1, 5, 2, 18.466185),
])
pad2 = doc.addObject("PartDesign::Pad", "Pad001")
body.addObject(pad2)
pad2.Profile = sketch11
pad2.Length = 5
pad2.Reversed = True

doc.recompute()
